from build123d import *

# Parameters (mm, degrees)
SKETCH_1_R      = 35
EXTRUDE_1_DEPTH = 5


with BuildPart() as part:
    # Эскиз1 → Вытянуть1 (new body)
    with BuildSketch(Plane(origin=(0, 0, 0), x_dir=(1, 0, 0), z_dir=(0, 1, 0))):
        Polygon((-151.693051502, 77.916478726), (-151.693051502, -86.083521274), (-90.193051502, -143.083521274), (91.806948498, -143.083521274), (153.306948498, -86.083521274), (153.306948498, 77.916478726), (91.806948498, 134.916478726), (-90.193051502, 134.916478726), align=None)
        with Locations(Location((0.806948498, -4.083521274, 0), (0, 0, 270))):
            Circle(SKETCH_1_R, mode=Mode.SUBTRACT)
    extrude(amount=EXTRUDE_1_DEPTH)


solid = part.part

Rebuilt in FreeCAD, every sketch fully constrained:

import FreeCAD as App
import Part
import Sketcher

V = App.Vector
Q = App.Units.Quantity

doc = App.newDocument("Part")
params = doc.addObject("Spreadsheet::Sheet", "Params")
for row, (alias, value) in enumerate([
    ("sketch1_diameter", "70 mm"),
    ("sketch1_width", "182 mm"),
    ("sketch1_height", "164 mm"),
    ("pad1_length", "5 mm"),
], start=1):
    params.set(f"A{row}", alias)
    params.set(f"B{row}", "=" + value)
    params.setAlias(f"B{row}", alias)

body = doc.addObject("PartDesign::Body", "Body")

# Sketch on XZ plane
sketch1 = body.newObject("Sketcher::SketchObject", "Sketch")
sketch1.AttachmentSupport = (doc.getObject("XZ_Plane"), [""])
sketch1.MapMode = "FlatFace"
sketch1.addGeometry([
    Part.LineSegment(V(-152, -78, 0), V(-152, 86, 0)),  # 0
    Part.LineSegment(V(-152, 86, 0), V(-90, 143, 0)),  # 1
    Part.LineSegment(V(-90, 143, 0), V(92, 143, 0)),  # 2
    Part.LineSegment(V(92, 143, 0), V(153, 86, 0)),  # 3
    Part.LineSegment(V(153, 86, 0), V(153, -78, 0)),  # 4
    Part.LineSegment(V(153, -78, 0), V(92, -135, 0)),  # 5
    Part.LineSegment(V(92, -135, 0), V(-90, -135, 0)),  # 6
    Part.LineSegment(V(-90, -135, 0), V(-152, -78, 0)),  # 7
    Part.Circle(V(1, 4, 0), V(0, 0, 1), 35),  # 8
], False)
sketch1.addConstraint([
    Sketcher.Constraint("Coincident", 0, 2, 1, 1),
    Sketcher.Constraint("Coincident", 1, 2, 2, 1),
    Sketcher.Constraint("Coincident", 2, 2, 3, 1),
    Sketcher.Constraint("Coincident", 3, 2, 4, 1),
    Sketcher.Constraint("Coincident", 4, 2, 5, 1),
    Sketcher.Constraint("Coincident", 5, 2, 6, 1),
    Sketcher.Constraint("Coincident", 6, 2, 7, 1),
    Sketcher.Constraint("Coincident", 7, 2, 0, 1),
    Sketcher.Constraint("Vertical", 0),
    Sketcher.Constraint("Horizontal", 2),
    Sketcher.Constraint("Vertical", 4),
    Sketcher.Constraint("Horizontal", 6),
    Sketcher.Constraint("Parallel", 1, 5),
    Sketcher.Constraint("Parallel", 3, 7),
    Sketcher.Constraint("Horizontal", 0, 2, 3, 2),
    Sketcher.Constraint("Horizontal", 4, 2, 7, 2),
    Sketcher.Constraint("Vertical", 2, 2, 5, 2),
    Sketcher.Constraint("Vertical", 1, 2, 6, 2),
    Sketcher.Constraint("Diameter", 8, Q("70 mm")),
    Sketcher.Constraint("DistanceX", 2, 1, 2, 2, Q("182 mm")),
    Sketcher.Constraint("DistanceY", 0, 1, 0, 2, Q("164 mm")),
    Sketcher.Constraint("DistanceY", 8, 3, 0, 2, Q("82 mm")),
    Sketcher.Constraint("DistanceY", 0, 2, 1, 2, Q("57 mm")),
    Sketcher.Constraint("DistanceX", 1, 2, 8, 3, Q("91 mm")),
    Sketcher.Constraint("DistanceX", 0, 2, 3, 2, Q("305 mm")),
    Sketcher.Constraint("DistanceX", -1, 1, 8, 3, Q("0.806948 mm")),
    Sketcher.Constraint("DistanceY", -1, 1, 8, 3, Q("4.083521 mm")),
])
sketch1.setExpression("Constraints[18]", "Params.sketch1_diameter")
sketch1.setExpression("Constraints[19]", "Params.sketch1_width")
sketch1.setExpression("Constraints[20]", "Params.sketch1_height")
pad1 = body.newObject("PartDesign::Pad", "Pad")
pad1.Profile = sketch1
pad1.setExpression("Length", "Params.pad1_length")
pad1.Reversed = True

doc.recompute()
